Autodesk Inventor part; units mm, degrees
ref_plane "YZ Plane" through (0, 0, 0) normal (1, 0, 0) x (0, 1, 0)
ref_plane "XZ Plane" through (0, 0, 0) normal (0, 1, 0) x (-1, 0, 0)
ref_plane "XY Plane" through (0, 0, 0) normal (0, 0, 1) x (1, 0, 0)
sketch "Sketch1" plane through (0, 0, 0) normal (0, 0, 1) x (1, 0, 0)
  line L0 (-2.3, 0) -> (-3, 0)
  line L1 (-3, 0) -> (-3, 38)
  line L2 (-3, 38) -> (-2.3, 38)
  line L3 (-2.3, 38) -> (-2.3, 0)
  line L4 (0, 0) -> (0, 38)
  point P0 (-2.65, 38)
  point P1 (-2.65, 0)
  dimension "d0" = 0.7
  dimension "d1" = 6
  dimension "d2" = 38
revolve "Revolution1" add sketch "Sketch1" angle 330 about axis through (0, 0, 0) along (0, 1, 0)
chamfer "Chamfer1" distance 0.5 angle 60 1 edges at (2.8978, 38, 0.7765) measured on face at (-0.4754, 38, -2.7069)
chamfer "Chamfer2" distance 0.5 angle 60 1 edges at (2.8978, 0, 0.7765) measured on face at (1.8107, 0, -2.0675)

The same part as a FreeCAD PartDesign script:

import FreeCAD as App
import Part
import Sketcher


def edges_at(feature, points):
    """Names of the edges that pass closest to the given points."""
    edges = feature.Shape.Edges
    near = lambda p: min(range(len(edges)), key=lambda i: edges[i].distToShape(Part.Vertex(*p))[0])
    return sorted({f"Edge{near(p) + 1}" for p in points})


def add_polygon(sketch, points):
    """Adds a closed chain of lines whose ends are joined by coincident constraints."""
    first, n = sketch.GeometryCount, len(points)
    for a, b in zip(points, points[1:] + points[:1]):
        sketch.addGeometry(Part.LineSegment(App.Vector(*a, 0), App.Vector(*b, 0)), False)
    for i in range(n):
        sketch.addConstraint(Sketcher.Constraint("Coincident", first + i, 2, first + (i + 1) % n, 1))

doc = App.newDocument("Part")
body = doc.addObject("PartDesign::Body", "Body")

sketch1 = doc.addObject("Sketcher::SketchObject", "Sketch")
body.addObject(sketch1)
sketch1.AttachmentSupport = (doc.XY_Plane, [""])
sketch1.MapMode = "FlatFace"
add_polygon(sketch1, [(-3, 0), (-2.3, 0), (-2.3, 38), (-3, 38)])
sketch1.addConstraint([
    Sketcher.Constraint("Horizontal", 0),
    Sketcher.Constraint("Vertical", 1),
    Sketcher.Constraint("Horizontal", 2),
    Sketcher.Constraint("Vertical", 3),
    Sketcher.Constraint("PointOnObject", 0, 2, -1),
    Sketcher.Constraint("DistanceY", 1, 1, 1, 2, 38.0),
    Sketcher.Constraint("DistanceX", 0, 1, 0, 2, 0.7),
    Sketcher.Constraint("DistanceX", 2, 2, -1, 1, 3.0),
])
revolution = doc.addObject("PartDesign::Revolution", "Revolution")
body.addObject(revolution)
revolution.Profile = sketch1
revolution.ReferenceAxis = (sketch1, ["V_Axis"])
revolution.Angle = 330
doc.recompute()

chamfer = doc.addObject("PartDesign::Chamfer", "Chamfer")
body.addObject(chamfer)
chamfer.Base = (revolution, edges_at(revolution, [(2.898, 38, 0.776)]))
chamfer.ChamferType = "Distance and Angle"
chamfer.Size = 0.5
chamfer.Angle = 60
doc.recompute()

chamfer2 = doc.addObject("PartDesign::Chamfer", "Chamfer001")
body.addObject(chamfer2)
chamfer2.Base = (chamfer, edges_at(chamfer, [(2.898, 0, 0.776)]))
chamfer2.ChamferType = "Distance and Angle"
chamfer2.Size = 0.5
chamfer2.Angle = 60
chamfer2.FlipDirection = True

doc.recompute()
